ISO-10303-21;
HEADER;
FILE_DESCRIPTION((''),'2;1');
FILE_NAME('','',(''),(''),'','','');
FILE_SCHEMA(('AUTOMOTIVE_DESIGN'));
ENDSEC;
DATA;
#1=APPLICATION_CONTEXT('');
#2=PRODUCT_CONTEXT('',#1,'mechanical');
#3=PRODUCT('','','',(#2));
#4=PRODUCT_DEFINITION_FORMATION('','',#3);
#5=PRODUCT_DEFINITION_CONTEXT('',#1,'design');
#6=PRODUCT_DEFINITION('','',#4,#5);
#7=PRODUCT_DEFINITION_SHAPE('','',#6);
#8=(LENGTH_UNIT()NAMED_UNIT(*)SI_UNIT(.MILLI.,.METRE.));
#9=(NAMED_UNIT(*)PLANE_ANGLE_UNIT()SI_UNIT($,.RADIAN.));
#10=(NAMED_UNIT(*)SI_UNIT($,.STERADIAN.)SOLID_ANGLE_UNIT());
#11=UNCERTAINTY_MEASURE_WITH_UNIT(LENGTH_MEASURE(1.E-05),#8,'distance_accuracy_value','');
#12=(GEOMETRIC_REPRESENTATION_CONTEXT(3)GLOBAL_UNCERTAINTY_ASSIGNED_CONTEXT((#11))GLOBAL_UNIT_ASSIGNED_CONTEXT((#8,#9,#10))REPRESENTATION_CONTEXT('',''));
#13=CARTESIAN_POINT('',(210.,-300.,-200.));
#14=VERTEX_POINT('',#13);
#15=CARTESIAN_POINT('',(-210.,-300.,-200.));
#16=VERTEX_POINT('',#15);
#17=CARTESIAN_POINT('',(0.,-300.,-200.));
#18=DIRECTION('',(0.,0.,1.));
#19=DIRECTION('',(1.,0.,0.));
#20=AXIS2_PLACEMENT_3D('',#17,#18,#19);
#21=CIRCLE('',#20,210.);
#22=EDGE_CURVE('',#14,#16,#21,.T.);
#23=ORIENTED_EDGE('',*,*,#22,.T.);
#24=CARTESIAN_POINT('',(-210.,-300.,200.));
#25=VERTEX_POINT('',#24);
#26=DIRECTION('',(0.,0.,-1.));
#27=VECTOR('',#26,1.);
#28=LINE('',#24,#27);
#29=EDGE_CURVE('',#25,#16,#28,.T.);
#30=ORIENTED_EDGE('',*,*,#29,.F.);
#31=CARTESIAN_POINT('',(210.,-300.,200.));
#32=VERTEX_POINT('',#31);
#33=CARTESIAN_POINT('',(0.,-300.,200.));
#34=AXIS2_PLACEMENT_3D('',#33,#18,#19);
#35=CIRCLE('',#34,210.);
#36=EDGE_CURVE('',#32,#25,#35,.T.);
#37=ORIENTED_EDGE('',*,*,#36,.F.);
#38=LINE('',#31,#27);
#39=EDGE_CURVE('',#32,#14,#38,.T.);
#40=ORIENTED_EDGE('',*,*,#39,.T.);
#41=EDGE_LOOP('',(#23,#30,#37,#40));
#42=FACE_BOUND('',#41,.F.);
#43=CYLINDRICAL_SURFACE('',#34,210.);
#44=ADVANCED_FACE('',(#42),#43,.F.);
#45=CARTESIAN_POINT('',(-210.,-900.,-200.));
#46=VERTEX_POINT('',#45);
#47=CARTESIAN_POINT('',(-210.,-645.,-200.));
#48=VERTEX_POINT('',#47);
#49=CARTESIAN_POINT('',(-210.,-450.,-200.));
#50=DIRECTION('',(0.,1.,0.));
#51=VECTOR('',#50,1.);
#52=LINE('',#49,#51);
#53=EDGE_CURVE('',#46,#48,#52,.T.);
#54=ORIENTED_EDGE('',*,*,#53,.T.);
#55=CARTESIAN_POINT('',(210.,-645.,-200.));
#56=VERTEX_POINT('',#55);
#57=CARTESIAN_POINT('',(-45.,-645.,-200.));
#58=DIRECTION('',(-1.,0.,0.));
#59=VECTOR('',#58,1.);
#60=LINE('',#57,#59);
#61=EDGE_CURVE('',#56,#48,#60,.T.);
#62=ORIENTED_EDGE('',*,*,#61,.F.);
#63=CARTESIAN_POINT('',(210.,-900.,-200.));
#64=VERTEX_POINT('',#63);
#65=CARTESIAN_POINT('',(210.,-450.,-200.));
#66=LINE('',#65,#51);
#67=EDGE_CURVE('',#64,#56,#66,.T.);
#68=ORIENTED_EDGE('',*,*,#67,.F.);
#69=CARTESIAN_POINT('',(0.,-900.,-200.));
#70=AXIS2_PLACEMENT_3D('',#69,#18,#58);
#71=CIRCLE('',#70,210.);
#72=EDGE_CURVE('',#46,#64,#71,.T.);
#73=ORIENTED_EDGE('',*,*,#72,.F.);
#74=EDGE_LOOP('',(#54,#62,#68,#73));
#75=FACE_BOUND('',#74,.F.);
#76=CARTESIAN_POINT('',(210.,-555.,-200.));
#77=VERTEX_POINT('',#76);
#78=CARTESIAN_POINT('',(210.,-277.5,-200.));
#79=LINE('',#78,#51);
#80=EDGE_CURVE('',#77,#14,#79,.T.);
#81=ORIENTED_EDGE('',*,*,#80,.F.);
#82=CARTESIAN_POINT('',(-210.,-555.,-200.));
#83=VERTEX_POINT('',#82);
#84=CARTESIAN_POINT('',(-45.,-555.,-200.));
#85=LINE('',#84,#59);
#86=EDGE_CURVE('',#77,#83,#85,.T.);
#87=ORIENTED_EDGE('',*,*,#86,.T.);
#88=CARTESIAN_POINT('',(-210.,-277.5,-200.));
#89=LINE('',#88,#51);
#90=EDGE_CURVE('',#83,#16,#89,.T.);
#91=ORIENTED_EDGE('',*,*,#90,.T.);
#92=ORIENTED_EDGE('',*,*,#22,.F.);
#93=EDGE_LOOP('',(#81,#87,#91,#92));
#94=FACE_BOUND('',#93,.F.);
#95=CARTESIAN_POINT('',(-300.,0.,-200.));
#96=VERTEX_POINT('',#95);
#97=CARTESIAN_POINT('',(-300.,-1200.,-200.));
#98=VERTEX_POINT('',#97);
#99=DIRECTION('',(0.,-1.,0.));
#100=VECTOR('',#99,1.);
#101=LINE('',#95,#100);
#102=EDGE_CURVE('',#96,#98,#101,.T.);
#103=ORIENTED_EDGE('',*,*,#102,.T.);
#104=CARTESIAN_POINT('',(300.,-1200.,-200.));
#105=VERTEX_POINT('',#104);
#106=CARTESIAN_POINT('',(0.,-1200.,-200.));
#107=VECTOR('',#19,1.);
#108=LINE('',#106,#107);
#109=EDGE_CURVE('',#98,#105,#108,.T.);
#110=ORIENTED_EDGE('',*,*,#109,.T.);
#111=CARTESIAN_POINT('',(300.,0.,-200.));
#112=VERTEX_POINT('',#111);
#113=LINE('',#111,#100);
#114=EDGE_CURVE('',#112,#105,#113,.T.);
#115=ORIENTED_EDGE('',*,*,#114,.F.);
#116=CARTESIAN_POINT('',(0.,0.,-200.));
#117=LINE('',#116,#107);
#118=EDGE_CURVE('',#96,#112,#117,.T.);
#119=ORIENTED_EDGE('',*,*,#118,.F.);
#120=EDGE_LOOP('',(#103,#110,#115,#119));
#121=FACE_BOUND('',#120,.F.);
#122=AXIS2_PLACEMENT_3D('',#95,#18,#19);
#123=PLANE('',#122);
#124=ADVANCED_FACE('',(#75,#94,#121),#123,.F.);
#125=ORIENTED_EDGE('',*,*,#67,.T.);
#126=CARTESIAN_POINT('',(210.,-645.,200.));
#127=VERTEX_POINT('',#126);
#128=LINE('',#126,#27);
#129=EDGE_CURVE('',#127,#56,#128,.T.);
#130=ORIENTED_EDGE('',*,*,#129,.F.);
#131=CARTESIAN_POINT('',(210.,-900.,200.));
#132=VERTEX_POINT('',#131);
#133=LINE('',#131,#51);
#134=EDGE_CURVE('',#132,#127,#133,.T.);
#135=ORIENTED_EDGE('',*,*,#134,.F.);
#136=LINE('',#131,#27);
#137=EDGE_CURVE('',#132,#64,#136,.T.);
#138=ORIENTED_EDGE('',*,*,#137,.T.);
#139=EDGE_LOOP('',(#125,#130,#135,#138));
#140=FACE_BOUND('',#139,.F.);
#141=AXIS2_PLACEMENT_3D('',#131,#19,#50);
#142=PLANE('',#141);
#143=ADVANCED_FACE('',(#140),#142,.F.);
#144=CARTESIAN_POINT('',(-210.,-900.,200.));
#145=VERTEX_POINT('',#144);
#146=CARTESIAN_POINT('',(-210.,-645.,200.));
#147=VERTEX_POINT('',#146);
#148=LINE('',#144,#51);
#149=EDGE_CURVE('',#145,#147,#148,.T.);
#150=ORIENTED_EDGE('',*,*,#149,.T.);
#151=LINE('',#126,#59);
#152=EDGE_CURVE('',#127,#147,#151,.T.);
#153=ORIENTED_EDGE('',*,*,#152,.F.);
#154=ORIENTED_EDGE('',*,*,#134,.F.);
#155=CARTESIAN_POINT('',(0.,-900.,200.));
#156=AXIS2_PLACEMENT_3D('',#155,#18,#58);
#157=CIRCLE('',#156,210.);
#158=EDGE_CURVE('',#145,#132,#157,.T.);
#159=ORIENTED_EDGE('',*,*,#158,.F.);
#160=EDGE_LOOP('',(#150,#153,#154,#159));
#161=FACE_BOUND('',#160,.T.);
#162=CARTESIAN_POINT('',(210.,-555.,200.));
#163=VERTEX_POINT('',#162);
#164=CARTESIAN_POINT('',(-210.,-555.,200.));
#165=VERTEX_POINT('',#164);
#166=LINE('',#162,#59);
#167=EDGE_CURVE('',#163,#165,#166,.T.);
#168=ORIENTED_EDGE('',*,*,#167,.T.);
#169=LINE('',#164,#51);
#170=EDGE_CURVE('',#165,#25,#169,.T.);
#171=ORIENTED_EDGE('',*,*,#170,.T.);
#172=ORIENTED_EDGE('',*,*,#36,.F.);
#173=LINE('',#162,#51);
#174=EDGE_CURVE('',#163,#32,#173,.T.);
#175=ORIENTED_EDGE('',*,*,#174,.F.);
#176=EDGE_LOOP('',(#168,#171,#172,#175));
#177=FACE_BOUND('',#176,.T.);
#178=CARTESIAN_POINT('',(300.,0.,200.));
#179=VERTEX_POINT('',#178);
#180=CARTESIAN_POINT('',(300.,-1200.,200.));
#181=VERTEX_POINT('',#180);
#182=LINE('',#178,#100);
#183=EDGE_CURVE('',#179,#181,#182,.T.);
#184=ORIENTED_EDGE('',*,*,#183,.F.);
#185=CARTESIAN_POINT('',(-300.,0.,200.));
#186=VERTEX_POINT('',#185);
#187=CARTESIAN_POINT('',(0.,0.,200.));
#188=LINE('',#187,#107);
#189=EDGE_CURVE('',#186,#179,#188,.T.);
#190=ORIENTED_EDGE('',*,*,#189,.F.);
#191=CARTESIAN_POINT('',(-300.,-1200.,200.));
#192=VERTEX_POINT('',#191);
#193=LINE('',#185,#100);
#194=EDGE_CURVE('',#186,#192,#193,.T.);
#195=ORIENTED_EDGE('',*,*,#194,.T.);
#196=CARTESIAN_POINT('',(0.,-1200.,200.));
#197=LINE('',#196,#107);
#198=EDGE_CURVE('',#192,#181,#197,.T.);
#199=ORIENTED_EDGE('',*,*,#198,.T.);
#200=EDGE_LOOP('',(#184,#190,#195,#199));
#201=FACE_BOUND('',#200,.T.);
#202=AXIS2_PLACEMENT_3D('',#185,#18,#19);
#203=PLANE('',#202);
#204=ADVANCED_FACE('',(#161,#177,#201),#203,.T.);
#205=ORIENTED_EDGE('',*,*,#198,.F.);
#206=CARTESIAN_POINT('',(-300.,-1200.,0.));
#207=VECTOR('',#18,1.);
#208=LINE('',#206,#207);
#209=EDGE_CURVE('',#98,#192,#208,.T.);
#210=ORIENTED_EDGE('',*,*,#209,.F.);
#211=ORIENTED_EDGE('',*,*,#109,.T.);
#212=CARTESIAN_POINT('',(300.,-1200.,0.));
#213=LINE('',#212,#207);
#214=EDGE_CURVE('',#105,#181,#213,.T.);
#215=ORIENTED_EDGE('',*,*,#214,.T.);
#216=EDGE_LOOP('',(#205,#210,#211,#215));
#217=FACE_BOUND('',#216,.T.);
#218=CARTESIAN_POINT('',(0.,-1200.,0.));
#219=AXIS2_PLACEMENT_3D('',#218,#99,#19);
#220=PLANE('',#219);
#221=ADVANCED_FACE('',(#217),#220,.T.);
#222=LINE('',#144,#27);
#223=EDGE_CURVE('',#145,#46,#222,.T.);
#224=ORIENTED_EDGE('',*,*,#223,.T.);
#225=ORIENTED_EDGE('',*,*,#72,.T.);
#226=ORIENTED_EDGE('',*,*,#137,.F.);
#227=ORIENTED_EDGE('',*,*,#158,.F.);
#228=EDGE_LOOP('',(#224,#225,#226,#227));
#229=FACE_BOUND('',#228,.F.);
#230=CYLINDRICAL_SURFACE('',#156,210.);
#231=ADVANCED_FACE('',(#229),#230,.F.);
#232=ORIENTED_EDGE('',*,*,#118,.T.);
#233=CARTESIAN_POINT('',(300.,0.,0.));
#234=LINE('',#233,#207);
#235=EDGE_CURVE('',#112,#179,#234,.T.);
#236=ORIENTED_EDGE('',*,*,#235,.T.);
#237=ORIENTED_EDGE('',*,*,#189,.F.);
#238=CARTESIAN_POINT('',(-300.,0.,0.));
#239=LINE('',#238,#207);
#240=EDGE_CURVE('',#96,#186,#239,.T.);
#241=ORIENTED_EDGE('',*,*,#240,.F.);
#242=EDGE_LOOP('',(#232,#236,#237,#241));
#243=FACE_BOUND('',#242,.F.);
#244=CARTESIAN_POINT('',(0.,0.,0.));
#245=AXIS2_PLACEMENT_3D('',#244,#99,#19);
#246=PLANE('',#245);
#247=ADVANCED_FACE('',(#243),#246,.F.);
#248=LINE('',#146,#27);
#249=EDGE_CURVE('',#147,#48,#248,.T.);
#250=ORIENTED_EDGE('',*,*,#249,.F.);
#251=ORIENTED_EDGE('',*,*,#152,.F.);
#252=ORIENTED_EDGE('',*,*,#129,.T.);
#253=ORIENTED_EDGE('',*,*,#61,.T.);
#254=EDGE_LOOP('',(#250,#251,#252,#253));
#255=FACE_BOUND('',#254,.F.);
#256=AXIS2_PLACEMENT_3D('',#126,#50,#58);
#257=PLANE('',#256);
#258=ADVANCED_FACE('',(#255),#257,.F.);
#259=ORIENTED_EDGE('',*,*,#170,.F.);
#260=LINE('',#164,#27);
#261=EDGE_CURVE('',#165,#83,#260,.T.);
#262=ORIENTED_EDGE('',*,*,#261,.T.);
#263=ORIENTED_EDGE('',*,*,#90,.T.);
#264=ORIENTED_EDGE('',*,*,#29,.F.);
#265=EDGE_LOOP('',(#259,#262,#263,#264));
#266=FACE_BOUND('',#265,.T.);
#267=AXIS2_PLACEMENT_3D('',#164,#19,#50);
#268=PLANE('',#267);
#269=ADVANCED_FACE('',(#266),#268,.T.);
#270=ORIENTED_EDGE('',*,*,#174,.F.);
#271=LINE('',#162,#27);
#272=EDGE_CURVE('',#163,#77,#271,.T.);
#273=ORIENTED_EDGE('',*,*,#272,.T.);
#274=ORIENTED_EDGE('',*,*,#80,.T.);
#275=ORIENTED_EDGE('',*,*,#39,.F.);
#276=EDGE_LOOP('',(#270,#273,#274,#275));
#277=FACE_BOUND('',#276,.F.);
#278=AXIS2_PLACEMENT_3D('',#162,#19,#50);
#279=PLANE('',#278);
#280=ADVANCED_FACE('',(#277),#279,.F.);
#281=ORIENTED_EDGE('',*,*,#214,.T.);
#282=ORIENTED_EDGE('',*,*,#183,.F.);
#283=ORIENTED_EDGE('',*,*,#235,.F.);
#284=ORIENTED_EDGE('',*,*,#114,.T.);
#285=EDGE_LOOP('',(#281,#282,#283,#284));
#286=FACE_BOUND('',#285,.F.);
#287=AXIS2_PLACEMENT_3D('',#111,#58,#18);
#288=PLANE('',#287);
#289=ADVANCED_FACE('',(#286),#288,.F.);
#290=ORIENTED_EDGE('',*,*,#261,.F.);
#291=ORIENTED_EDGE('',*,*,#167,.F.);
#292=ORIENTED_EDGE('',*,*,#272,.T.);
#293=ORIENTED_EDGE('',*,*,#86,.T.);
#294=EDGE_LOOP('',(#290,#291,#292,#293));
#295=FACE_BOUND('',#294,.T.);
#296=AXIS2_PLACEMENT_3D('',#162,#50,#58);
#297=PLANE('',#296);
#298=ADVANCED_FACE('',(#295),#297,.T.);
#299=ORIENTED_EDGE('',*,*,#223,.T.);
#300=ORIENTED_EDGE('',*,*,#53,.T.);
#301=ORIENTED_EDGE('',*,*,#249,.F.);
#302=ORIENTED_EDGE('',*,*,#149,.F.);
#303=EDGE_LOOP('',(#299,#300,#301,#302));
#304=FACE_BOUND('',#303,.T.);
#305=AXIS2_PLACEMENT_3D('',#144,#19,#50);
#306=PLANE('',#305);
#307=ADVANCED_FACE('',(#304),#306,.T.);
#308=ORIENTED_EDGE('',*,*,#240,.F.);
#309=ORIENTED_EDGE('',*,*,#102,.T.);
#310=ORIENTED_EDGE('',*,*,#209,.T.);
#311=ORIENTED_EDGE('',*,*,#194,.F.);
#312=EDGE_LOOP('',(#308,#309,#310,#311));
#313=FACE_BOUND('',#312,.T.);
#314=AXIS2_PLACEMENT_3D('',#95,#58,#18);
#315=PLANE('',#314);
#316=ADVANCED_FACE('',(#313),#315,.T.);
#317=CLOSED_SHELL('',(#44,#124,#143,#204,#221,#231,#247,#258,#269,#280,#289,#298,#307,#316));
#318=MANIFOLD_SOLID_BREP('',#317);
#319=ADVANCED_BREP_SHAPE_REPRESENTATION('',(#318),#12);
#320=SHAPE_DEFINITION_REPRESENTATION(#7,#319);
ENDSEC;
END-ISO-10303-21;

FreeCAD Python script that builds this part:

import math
import FreeCAD as App
import Part
import Sketcher

V = App.Vector


def add_polygon(sketch, points):
    """Adds a closed chain of lines whose ends are joined by coincident constraints."""
    first, n = sketch.GeometryCount, len(points)
    for a, b in zip(points, points[1:] + points[:1]):
        sketch.addGeometry(Part.LineSegment(App.Vector(*a, 0), App.Vector(*b, 0)), False)
    for i in range(n):
        sketch.addConstraint(Sketcher.Constraint("Coincident", first + i, 2, first + (i + 1) % n, 1))

doc = App.newDocument("Part")
body = doc.addObject("PartDesign::Body", "Body")

# Sketch on XZ plane
sketch1 = body.newObject("Sketcher::SketchObject", "Sketch")
sketch1.AttachmentSupport = (doc.getObject("XZ_Plane"), [""])
sketch1.MapMode = "FlatFace"
add_polygon(sketch1, [(-300, 200), (-300, -200), (300, -200), (300, 200)])  # lines 0-3
sketch1.addConstraint(Sketcher.Constraint("Vertical", 0))
sketch1.addConstraint(Sketcher.Constraint("Horizontal", 1))
sketch1.addConstraint(Sketcher.Constraint("Vertical", 2))
sketch1.addConstraint(Sketcher.Constraint("Horizontal", 3))
sketch1.addConstraint(Sketcher.Constraint("Symmetric", 0, 2, 2, 2, -1, 1))
sketch1.addConstraint(Sketcher.Constraint("DistanceX", 1, 1, 1, 2, 600.0))
sketch1.addConstraint(Sketcher.Constraint("DistanceY", 0, 2, 0, 1, 400.0))
pad1 = body.newObject("PartDesign::Pad", "Pad")
pad1.Profile = sketch1
pad1.Length = 1200

# Sketch on XY plane
sketch2 = body.newObject("Sketcher::SketchObject", "Sketch001")
sketch2.AttachmentSupport = (doc.getObject("XY_Plane"), [""])
sketch2.MapMode = "FlatFace"
sketch2.AttachmentOffset = App.Placement(V(0, 0, 200), App.Rotation())
sketch2.addGeometry(Part.LineSegment(V(210, -900, 0), V(210, -645, 0)), False)
sketch2.addGeometry(Part.LineSegment(V(210, -645, 0), V(-210, -645, 0)), False)
sketch2.addGeometry(Part.LineSegment(V(-210, -645, 0), V(-210, -900, 0)), False)
sketch2.addGeometry(Part.ArcOfCircle(Part.Circle(V(0, -900, 0), V(0, 0, 1), 210), math.radians(180), math.radians(360)), False)
sketch2.addGeometry(Part.ArcOfCircle(Part.Circle(V(0, -300, 0), V(0, 0, 1), 210), math.radians(0), math.radians(180)), False)
sketch2.addGeometry(Part.LineSegment(V(-210, -300, 0), V(-210, -555, 0)), False)
sketch2.addGeometry(Part.LineSegment(V(-210, -555, 0), V(210, -555, 0)), False)
sketch2.addGeometry(Part.LineSegment(V(210, -555, 0), V(210, -300, 0)), False)
sketch2.addConstraint(Sketcher.Constraint("Coincident", 0, 2, 1, 1))
sketch2.addConstraint(Sketcher.Constraint("Coincident", 1, 2, 2, 1))
sketch2.addConstraint(Sketcher.Constraint("Tangent", 2, 2, 3, 1))
sketch2.addConstraint(Sketcher.Constraint("Tangent", 3, 2, 0, 1))
sketch2.addConstraint(Sketcher.Constraint("Tangent", 4, 2, 5, 1))
sketch2.addConstraint(Sketcher.Constraint("Coincident", 5, 2, 6, 1))
sketch2.addConstraint(Sketcher.Constraint("Coincident", 6, 2, 7, 1))
sketch2.addConstraint(Sketcher.Constraint("Tangent", 7, 2, 4, 1))
sketch2.addConstraint(Sketcher.Constraint("Vertical", 0))
sketch2.addConstraint(Sketcher.Constraint("Horizontal", 1))
sketch2.addConstraint(Sketcher.Constraint("Vertical", 2))
sketch2.addConstraint(Sketcher.Constraint("Vertical", 5))
sketch2.addConstraint(Sketcher.Constraint("Horizontal", 6))
sketch2.addConstraint(Sketcher.Constraint("Vertical", 7))
sketch2.addConstraint(Sketcher.Constraint("Equal", 3, 4))
sketch2.addConstraint(Sketcher.Constraint("PointOnObject", 3, 3, -2))
sketch2.addConstraint(Sketcher.Constraint("PointOnObject", 4, 3, -2))
sketch2.addConstraint(Sketcher.Constraint("Equal", 2, 5))
sketch2.addConstraint(Sketcher.Constraint("Radius", 3, 210.0))
sketch2.addConstraint(Sketcher.Constraint("DistanceY", 0, 1, 0, 2, 255.0))
sketch2.addConstraint(Sketcher.Constraint("DistanceY", 3, 3, -1, 1, 900.0))
sketch2.addConstraint(Sketcher.Constraint("DistanceY", 4, 3, -1, 1, 300.0))
pocket1 = body.newObject("PartDesign::Pocket", "Pocket")
pocket1.Profile = sketch2
pocket1.Type = "ThroughAll"

doc.recompute()
